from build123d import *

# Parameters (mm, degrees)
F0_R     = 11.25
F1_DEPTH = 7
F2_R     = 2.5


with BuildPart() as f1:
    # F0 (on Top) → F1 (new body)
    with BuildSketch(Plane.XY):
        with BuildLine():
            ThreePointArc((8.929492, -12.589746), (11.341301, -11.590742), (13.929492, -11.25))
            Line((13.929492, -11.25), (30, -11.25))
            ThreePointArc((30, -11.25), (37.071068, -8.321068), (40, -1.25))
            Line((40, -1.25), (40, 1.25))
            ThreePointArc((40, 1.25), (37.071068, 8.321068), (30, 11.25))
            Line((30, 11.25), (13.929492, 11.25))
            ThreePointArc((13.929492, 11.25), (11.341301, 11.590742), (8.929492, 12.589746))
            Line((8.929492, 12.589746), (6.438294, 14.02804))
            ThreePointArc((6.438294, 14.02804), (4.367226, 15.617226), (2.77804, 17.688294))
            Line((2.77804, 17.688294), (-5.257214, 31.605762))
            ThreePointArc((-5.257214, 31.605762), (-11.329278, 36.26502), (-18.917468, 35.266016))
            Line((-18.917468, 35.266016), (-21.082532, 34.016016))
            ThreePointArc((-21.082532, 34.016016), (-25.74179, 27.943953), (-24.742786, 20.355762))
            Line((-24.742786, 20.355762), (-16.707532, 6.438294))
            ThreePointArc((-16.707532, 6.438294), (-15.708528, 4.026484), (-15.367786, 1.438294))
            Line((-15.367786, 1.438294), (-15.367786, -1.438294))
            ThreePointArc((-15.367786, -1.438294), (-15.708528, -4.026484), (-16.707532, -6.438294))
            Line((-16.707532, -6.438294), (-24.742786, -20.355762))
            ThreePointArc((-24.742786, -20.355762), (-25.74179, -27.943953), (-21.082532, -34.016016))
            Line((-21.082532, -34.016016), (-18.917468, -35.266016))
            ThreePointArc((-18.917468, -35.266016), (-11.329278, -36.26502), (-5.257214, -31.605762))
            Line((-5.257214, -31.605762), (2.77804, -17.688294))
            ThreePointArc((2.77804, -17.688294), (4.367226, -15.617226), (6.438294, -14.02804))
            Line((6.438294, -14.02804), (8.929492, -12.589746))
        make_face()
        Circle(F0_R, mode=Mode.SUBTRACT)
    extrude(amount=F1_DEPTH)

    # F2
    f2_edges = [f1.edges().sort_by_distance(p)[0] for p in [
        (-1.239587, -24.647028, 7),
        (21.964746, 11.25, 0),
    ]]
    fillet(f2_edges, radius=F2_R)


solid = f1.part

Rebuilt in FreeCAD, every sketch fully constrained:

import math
import FreeCAD as App
import Part
import Sketcher
Q = App.Units.Quantity


def edges_at(feature, points):
    """Names of the edges that pass closest to the given points."""
    edges = feature.Shape.Edges
    near = lambda p: min(range(len(edges)), key=lambda i: edges[i].distToShape(Part.Vertex(*p))[0])
    return sorted({f"Edge{near(p) + 1}" for p in points})

doc = App.newDocument("Part")
params = doc.addObject("Spreadsheet::Sheet", "Params")
for row, (alias, value) in enumerate([
    ("sketch1_radius", "9.999999 mm"),
    ("sketch1_radius2", "10.000001 mm"),
    ("sketch1_diameter", "22.5 mm"),
    ("sketch1_height", "2.5 mm"),
    ("sketch1_length", "2.5 mm"),
    ("pad1_length", "7 mm"),
    ("fillet_radius", "2.5 mm"),
], start=1):
    params.set(f"A{row}", alias)
    params.set(f"B{row}", "=" + value)
    params.setAlias(f"B{row}", alias)

body = doc.addObject("PartDesign::Body", "Body")

# Sketch on XY plane
sketch1 = doc.addObject("Sketcher::SketchObject", "Sketch")
body.addObject(sketch1)
sketch1.AttachmentSupport = (doc.XY_Plane, [""])
sketch1.MapMode = "FlatFace"
sketch1.addGeometry([
    Part.ArcOfCircle(Part.Circle(App.Vector(13.9, -21.3, 0), App.Vector(0, 0, 1), 10), math.radians(90), math.radians(120)),  # 0
    Part.LineSegment(App.Vector(13.9, -11.2, 0), App.Vector(30, -11.2, 0)),  # 1
    Part.ArcOfCircle(Part.Circle(App.Vector(30, -1.3, 0), App.Vector(0, 0, 1), 10), math.radians(-90), math.radians(0)),  # 2
    Part.LineSegment(App.Vector(40, -1.2, 0), App.Vector(40, 1.2, 0)),  # 3
    Part.ArcOfCircle(Part.Circle(App.Vector(30, 1.3, 0), App.Vector(0, 0, 1), 10), math.radians(0), math.radians(90)),  # 4
    Part.LineSegment(App.Vector(30, 11.2, 0), App.Vector(13.9, 11.2, 0)),  # 5
    Part.ArcOfCircle(Part.Circle(App.Vector(13.9, 21.3, 0), App.Vector(0, 0, 1), 10), math.radians(-120), math.radians(-90)),  # 6
    Part.LineSegment(App.Vector(8.9, 12.6, 0), App.Vector(6.4, 14, 0)),  # 7
    Part.ArcOfCircle(Part.Circle(App.Vector(11.4, 22.7, 0), App.Vector(0, 0, 1), 10), math.radians(-150), math.radians(-120)),  # 8
    Part.LineSegment(App.Vector(2.8, 17.7, 0), App.Vector(-5.3, 31.6, 0)),  # 9
    Part.ArcOfCircle(Part.Circle(App.Vector(-13.9, 26.6, 0), App.Vector(0, 0, 1), 10), math.radians(30), math.radians(120)),  # 10
    Part.LineSegment(App.Vector(-18.9, 35.3, 0), App.Vector(-21.1, 34, 0)),  # 11
    Part.ArcOfCircle(Part.Circle(App.Vector(-16.1, 25.4, 0), App.Vector(0, 0, 1), 10), math.radians(120), math.radians(210)),  # 12
    Part.LineSegment(App.Vector(-24.7, 20.4, 0), App.Vector(-16.7, 6.4, 0)),  # 13
    Part.ArcOfCircle(Part.Circle(App.Vector(-25.4, 1.4, 0), App.Vector(0, 0, 1), 10), math.radians(0), math.radians(30)),  # 14
    Part.LineSegment(App.Vector(-15.4, 1.4, 0), App.Vector(-15.4, -1.4, 0)),  # 15
    Part.ArcOfCircle(Part.Circle(App.Vector(-25.4, -1.4, 0), App.Vector(0, 0, 1), 10), math.radians(-30), math.radians(0)),  # 16
    Part.LineSegment(App.Vector(-16.7, -6.4, 0), App.Vector(-24.7, -20.4, 0)),  # 17
    Part.ArcOfCircle(Part.Circle(App.Vector(-16.1, -25.4, 0), App.Vector(0, 0, 1), 10), math.radians(150), math.radians(240)),  # 18
    Part.LineSegment(App.Vector(-21.1, -34, 0), App.Vector(-18.9, -35.3, 0)),  # 19
    Part.ArcOfCircle(Part.Circle(App.Vector(-13.9, -26.6, 0), App.Vector(0, 0, 1), 10), math.radians(-120), math.radians(-30)),  # 20
    Part.LineSegment(App.Vector(-5.3, -31.6, 0), App.Vector(2.8, -17.7, 0)),  # 21
    Part.ArcOfCircle(Part.Circle(App.Vector(11.4, -22.7, 0), App.Vector(0, 0, 1), 10), math.radians(120), math.radians(150)),  # 22
    Part.LineSegment(App.Vector(6.4, -14, 0), App.Vector(8.9, -12.6, 0)),  # 23
    Part.Circle(App.Vector(0, 0, 0), App.Vector(0, 0, 1), 11.2),  # 24
], False)
sketch1.addConstraint([
    Sketcher.Constraint("Tangent", 0, 1, 1, 1),
    Sketcher.Constraint("Tangent", 1, 2, 2, 1),
    Sketcher.Constraint("Tangent", 2, 2, 3, 1),
    Sketcher.Constraint("Tangent", 3, 2, 4, 1),
    Sketcher.Constraint("Tangent", 4, 2, 5, 1),
    Sketcher.Constraint("Tangent", 5, 2, 6, 2),
    Sketcher.Constraint("Tangent", 6, 1, 7, 1),
    Sketcher.Constraint("Tangent", 7, 2, 8, 2),
    Sketcher.Constraint("Tangent", 8, 1, 9, 1),
    Sketcher.Constraint("Tangent", 9, 2, 10, 1),
    Sketcher.Constraint("Tangent", 10, 2, 11, 1),
    Sketcher.Constraint("Tangent", 11, 2, 12, 1),
    Sketcher.Constraint("Tangent", 12, 2, 13, 1),
    Sketcher.Constraint("Tangent", 13, 2, 14, 2),
    Sketcher.Constraint("Tangent", 14, 1, 15, 1),
    Sketcher.Constraint("Tangent", 15, 2, 16, 2),
    Sketcher.Constraint("Tangent", 16, 1, 17, 1),
    Sketcher.Constraint("Tangent", 17, 2, 18, 1),
    Sketcher.Constraint("Tangent", 18, 2, 19, 1),
    Sketcher.Constraint("Tangent", 19, 2, 20, 1),
    Sketcher.Constraint("Tangent", 20, 2, 21, 1),
    Sketcher.Constraint("Tangent", 21, 2, 22, 2),
    Sketcher.Constraint("Tangent", 22, 1, 23, 1),
    Sketcher.Constraint("Tangent", 23, 2, 0, 2),
    Sketcher.Constraint("Horizontal", 1),
    Sketcher.Constraint("Vertical", 3),
    Sketcher.Constraint("Horizontal", 5),
    Sketcher.Constraint("Vertical", 15),
    Sketcher.Constraint("Coincident", 24, 3, -1, 1),
    Sketcher.Constraint("Equal", 2, 4),
    Sketcher.Constraint("Equal", 0, 6),
    Sketcher.Constraint("Equal", 6, 10),
    Sketcher.Constraint("Equal", 10, 12),
    Sketcher.Constraint("Equal", 14, 16),
    Sketcher.Constraint("Equal", 12, 18),
    Sketcher.Constraint("Equal", 18, 20),
    Sketcher.Constraint("Equal", 8, 22),
    Sketcher.Constraint("Symmetric", 0, 3, 6, 3, -1),
    Sketcher.Constraint("Symmetric", 12, 3, 18, 3, -1),
    Sketcher.Constraint("Symmetric", 10, 3, 20, 3, -1),
    Sketcher.Constraint("Symmetric", 8, 3, 22, 3, -1),
    Sketcher.Constraint("Perpendicular", 9, 11),
    Sketcher.Constraint("Perpendicular", 11, 13),
    Sketcher.Constraint("Perpendicular", 7, 17),
    Sketcher.Constraint("Perpendicular", 17, 19),
    Sketcher.Constraint("Equal", 9, 13),
    Sketcher.Constraint("Radius", 2, 9.999999),
    Sketcher.Constraint("Radius", 10, 10.000001),
    Sketcher.Constraint("Diameter", 24, 22.5),
    Sketcher.Constraint("Angle", 7, Q("149.999997 deg")),
    Sketcher.Constraint("DistanceY", 3, 1, 3, 2, 2.5),
    Sketcher.Constraint("DistanceX", -1, 1, 2, 3, 30.000001),
    Sketcher.Constraint("DistanceY", 14, 1, 13, 2, 5.0),
    Sketcher.Constraint("Distance", 11, 2.5),
    Sketcher.Constraint("Radius", 8, 9.999991),
    Sketcher.Constraint("DistanceX", 13, 2, 12, 3, 0.625),
    Sketcher.Constraint("DistanceX", 1, 1, 1, 2, 16.070508),
    Sketcher.Constraint("DistanceX", 7, 2, 6, 3, 7.491199),
])
sketch1.setExpression("Constraints[46]", "Params.sketch1_radius")
sketch1.setExpression("Constraints[47]", "Params.sketch1_radius2")
sketch1.setExpression("Constraints[48]", "Params.sketch1_diameter")
sketch1.setExpression("Constraints[50]", "Params.sketch1_height")
sketch1.setExpression("Constraints[53]", "Params.sketch1_length")
pad1 = doc.addObject("PartDesign::Pad", "Pad")
body.addObject(pad1)
pad1.Profile = sketch1
pad1.setExpression("Length", "Params.pad1_length")
doc.recompute()

fillet = doc.addObject("PartDesign::Fillet", "Fillet")
body.addObject(fillet)
fillet.Base = (pad1, edges_at(pad1, [(-1.24, -24.647, 7), (21.965, 11.25, 0)]))
fillet.setExpression("Radius", "Params.fillet_radius")

doc.recompute()
